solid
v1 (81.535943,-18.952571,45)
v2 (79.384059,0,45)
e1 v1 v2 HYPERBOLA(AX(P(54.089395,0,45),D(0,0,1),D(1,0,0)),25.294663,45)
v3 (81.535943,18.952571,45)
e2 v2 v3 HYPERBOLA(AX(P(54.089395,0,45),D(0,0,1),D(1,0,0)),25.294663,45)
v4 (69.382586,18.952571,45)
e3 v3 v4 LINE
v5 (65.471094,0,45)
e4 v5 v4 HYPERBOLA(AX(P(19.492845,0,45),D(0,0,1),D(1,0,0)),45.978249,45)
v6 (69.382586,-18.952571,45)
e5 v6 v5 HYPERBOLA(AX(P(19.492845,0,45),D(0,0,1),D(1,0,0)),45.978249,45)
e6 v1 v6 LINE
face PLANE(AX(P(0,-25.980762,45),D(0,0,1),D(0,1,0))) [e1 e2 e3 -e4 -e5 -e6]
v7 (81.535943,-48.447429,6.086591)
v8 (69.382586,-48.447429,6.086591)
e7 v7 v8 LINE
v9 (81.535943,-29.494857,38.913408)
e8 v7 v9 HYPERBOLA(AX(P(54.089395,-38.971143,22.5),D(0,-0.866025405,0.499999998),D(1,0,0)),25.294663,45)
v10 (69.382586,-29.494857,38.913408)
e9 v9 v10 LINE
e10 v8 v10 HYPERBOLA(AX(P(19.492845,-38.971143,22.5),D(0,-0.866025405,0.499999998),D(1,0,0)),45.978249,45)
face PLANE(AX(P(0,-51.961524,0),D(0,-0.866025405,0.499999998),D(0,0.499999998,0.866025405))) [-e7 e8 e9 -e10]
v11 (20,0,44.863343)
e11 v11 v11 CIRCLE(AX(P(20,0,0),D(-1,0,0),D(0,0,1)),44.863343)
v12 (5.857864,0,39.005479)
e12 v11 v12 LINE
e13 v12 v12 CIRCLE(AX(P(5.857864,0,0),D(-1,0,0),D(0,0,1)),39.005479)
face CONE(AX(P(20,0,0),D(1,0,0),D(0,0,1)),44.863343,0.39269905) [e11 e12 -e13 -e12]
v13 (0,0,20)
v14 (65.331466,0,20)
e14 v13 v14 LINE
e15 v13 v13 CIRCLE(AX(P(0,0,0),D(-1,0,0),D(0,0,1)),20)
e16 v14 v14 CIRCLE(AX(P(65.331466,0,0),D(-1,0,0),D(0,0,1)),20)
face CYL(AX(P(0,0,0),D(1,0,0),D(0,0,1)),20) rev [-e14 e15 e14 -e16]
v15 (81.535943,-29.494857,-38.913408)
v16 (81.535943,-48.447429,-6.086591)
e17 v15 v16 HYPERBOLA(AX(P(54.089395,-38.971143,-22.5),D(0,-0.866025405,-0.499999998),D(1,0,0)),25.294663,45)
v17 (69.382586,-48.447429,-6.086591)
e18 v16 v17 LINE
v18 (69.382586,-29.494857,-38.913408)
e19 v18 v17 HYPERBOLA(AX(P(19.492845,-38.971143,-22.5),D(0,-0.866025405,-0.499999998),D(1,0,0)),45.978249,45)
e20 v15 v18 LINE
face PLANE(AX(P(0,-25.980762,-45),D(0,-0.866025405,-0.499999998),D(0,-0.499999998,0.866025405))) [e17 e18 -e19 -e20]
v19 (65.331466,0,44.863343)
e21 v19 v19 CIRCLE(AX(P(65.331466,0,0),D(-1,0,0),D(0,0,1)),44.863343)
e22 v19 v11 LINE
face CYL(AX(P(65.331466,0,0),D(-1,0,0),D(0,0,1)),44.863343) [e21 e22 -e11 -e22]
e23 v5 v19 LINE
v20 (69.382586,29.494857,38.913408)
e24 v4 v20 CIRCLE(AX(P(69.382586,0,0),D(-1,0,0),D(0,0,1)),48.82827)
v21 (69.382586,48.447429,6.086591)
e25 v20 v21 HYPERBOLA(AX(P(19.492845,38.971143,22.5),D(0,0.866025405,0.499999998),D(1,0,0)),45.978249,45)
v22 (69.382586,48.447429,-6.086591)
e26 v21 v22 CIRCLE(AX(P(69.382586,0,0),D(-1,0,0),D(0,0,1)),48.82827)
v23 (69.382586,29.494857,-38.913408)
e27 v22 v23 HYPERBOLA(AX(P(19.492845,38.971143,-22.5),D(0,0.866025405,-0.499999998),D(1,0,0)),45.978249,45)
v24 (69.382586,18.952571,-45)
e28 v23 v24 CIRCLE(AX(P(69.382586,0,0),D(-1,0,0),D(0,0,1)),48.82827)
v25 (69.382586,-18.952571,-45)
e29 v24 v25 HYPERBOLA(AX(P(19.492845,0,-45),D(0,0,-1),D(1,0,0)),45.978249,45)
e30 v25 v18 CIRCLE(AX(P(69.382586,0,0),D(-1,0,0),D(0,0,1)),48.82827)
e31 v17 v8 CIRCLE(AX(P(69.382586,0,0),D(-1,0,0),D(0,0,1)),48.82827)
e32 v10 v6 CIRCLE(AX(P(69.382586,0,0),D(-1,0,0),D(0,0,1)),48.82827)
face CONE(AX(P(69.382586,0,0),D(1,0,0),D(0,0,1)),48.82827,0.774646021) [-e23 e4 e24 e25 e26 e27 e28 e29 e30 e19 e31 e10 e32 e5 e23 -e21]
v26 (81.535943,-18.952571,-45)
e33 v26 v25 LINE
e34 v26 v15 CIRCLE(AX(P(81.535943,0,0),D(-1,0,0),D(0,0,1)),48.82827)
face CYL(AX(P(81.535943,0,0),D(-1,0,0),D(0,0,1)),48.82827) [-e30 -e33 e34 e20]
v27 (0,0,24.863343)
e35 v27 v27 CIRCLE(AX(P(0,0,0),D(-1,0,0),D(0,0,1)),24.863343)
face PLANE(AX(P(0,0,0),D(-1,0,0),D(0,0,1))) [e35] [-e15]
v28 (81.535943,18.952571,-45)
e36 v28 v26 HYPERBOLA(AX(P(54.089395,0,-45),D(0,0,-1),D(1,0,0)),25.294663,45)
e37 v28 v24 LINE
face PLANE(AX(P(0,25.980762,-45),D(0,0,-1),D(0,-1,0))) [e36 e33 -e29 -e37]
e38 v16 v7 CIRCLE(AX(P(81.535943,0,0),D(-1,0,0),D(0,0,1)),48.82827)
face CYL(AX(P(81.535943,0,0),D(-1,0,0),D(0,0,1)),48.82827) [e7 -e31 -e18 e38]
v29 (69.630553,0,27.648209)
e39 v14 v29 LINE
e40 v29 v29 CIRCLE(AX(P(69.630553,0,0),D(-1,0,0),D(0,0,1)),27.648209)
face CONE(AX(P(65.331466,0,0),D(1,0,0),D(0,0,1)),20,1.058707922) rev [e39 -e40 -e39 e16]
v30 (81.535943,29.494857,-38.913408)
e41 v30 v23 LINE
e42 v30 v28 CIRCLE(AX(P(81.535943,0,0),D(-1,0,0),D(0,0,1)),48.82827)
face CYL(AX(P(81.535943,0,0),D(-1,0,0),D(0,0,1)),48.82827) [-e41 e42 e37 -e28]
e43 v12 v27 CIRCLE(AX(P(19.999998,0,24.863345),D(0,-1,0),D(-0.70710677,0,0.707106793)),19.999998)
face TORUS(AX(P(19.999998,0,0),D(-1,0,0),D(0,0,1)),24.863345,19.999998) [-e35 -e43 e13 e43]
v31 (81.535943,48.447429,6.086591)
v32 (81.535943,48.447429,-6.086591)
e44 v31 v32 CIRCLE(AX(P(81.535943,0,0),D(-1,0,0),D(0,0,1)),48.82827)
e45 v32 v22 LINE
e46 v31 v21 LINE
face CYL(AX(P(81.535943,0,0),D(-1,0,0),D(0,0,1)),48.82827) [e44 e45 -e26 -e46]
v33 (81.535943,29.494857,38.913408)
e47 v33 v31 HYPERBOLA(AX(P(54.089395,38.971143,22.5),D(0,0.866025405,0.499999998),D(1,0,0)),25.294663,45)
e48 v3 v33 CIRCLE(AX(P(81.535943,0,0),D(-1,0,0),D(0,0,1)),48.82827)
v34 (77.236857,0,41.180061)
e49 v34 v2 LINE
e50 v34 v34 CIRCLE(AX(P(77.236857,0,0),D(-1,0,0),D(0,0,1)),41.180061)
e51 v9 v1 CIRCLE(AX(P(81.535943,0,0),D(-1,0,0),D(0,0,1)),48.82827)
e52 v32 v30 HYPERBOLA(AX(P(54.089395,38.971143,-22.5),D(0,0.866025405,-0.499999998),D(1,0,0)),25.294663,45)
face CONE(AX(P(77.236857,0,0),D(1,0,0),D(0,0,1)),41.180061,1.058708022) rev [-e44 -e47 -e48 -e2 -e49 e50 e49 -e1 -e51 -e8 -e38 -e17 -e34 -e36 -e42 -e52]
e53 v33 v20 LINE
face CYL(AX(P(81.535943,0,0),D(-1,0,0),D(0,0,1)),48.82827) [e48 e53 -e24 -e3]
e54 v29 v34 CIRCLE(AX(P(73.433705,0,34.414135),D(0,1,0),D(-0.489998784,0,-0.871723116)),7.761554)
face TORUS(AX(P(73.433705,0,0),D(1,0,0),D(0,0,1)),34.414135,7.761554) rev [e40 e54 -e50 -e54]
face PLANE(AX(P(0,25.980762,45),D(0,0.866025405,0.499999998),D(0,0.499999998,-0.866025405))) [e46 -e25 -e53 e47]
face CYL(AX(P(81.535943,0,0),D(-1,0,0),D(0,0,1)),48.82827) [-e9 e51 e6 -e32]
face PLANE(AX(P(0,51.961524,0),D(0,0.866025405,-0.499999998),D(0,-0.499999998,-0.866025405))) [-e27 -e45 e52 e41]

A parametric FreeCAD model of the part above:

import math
import FreeCAD as App
import Part
import Sketcher

V = App.Vector
Q = App.Units.Quantity

doc = App.newDocument("Part")
body = doc.addObject("PartDesign::Body", "Body")

sketch1 = body.newObject("Sketcher::SketchObject", "Sketch")
sketch1.AttachmentSupport = (doc.getObject("XZ_Plane"), [""])
sketch1.MapMode = "FlatFace"
sketch1.addGeometry(Part.LineSegment(V(0, 20, 0), V(65.3, 20, 0)), False)
sketch1.addGeometry(Part.LineSegment(V(65.3, 20, 0), V(69.6, 27.6, 0)), False)
sketch1.addGeometry(Part.ArcOfCircle(Part.Circle(V(73.4, 34.4, 0), V(0, 0, 1), 7.8), math.radians(61), math.radians(241)), False)
sketch1.addGeometry(Part.LineSegment(V(77.2, 41.2, 0), V(81.5, 48.8, 0)), False)
sketch1.addGeometry(Part.LineSegment(V(81.5, 48.8, 0), V(69.4, 48.8, 0)), False)
sketch1.addGeometry(Part.LineSegment(V(69.4, 48.8, 0), V(65.3, 44.9, 0)), False)
sketch1.addGeometry(Part.LineSegment(V(65.3, 44.9, 0), V(20, 44.9, 0)), False)
sketch1.addGeometry(Part.LineSegment(V(20, 44.9, 0), V(5.9, 39, 0)), False)
sketch1.addGeometry(Part.ArcOfCircle(Part.Circle(V(20, 24.9, 0), V(0, 0, 1), 20), math.radians(135), math.radians(180)), False)
sketch1.addGeometry(Part.LineSegment(V(0, 24.9, 0), V(0, 20, 0)), False)
sketch1.addConstraint(Sketcher.Constraint("Coincident", 0, 2, 1, 1))
sketch1.addConstraint(Sketcher.Constraint("Coincident", 1, 2, 2, 2))
sketch1.addConstraint(Sketcher.Constraint("Coincident", 2, 1, 3, 1))
sketch1.addConstraint(Sketcher.Constraint("Coincident", 3, 2, 4, 1))
sketch1.addConstraint(Sketcher.Constraint("Coincident", 4, 2, 5, 1))
sketch1.addConstraint(Sketcher.Constraint("Coincident", 5, 2, 6, 1))
sketch1.addConstraint(Sketcher.Constraint("Coincident", 6, 2, 7, 1))
sketch1.addConstraint(Sketcher.Constraint("Coincident", 7, 2, 8, 1))
sketch1.addConstraint(Sketcher.Constraint("Tangent", 8, 2, 9, 1))
sketch1.addConstraint(Sketcher.Constraint("Coincident", 9, 2, 0, 1))
sketch1.addConstraint(Sketcher.Constraint("Horizontal", 0))
sketch1.addConstraint(Sketcher.Constraint("Horizontal", 4))
sketch1.addConstraint(Sketcher.Constraint("Horizontal", 6))
sketch1.addConstraint(Sketcher.Constraint("Vertical", 9))
sketch1.addConstraint(Sketcher.Constraint("PointOnObject", 8, 2, -2))
sketch1.addConstraint(Sketcher.Constraint("Parallel", 1, 3))
sketch1.addConstraint(Sketcher.Constraint("Vertical", 0, 2, 5, 2))
sketch1.addConstraint(Sketcher.Constraint("Equal", 1, 3))
sketch1.addConstraint(Sketcher.Constraint("DistanceY", -1, 1, 0, 2, Q("20 mm")))
sketch1.addConstraint(Sketcher.Constraint("DistanceX", -1, 1, 6, 2, Q("20 mm")))
sketch1.addConstraint(Sketcher.Constraint("Angle", 7, Q("-157.500002 deg")))
sketch1.addConstraint(Sketcher.Constraint("DistanceY", 8, 3, 6, 2, Q("19.999998 mm")))
sketch1.addConstraint(Sketcher.Constraint("Radius", 2, Q("7.761554 mm")))
sketch1.addConstraint(Sketcher.Constraint("Radius", 8, Q("19.999998 mm")))
sketch1.addConstraint(Sketcher.Constraint("Distance", 5, Q("5.668529 mm")))
sketch1.addConstraint(Sketcher.Constraint("DistanceX", 0, 1, 0, 2, Q("65.331466 mm")))
sketch1.addConstraint(Sketcher.Constraint("DistanceX", 4, 2, 4, 1, Q("12.153357 mm")))
sketch1.addConstraint(Sketcher.Constraint("DistanceY", 9, 2, 9, 1, Q("4.863343 mm")))
sketch1.addConstraint(Sketcher.Constraint("DistanceY", -1, 1, 1, 2, Q("27.648209 mm")))
sketch1.addConstraint(Sketcher.Constraint("DistanceY", -1, 1, 2, 1, Q("41.180061 mm")))
sketch1.addConstraint(Sketcher.Constraint("DistanceY", 8, 3, 2, 3, Q("9.55079 mm")))
revolution = body.newObject("PartDesign::Revolution", "Revolution")
revolution.Profile = sketch1
revolution.ReferenceAxis = (sketch1, ["H_Axis"])
revolution.Angle = 360

sketch2 = body.newObject("Sketcher::SketchObject", "Sketch001")
sketch2.AttachmentSupport = (doc.getObject("YZ_Plane"), [""])
sketch2.MapMode = "FlatFace"
sketch2.addGeometry(Part.Circle(V(0, 0, 0), V(0, 0, 1), 117), False)
sketch2.addGeometry(Part.LineSegment(V(-26, -45, 0), V(-52, 0, 0)), False)
sketch2.addGeometry(Part.LineSegment(V(-52, 0, 0), V(-26, 45, 0)), False)
sketch2.addGeometry(Part.LineSegment(V(-26, 45, 0), V(26, 45, 0)), False)
sketch2.addGeometry(Part.LineSegment(V(26, 45, 0), V(52, 0, 0)), False)
sketch2.addGeometry(Part.LineSegment(V(52, 0, 0), V(26, -45, 0)), False)
sketch2.addGeometry(Part.LineSegment(V(26, -45, 0), V(-26, -45, 0)), False)
sketch2.addConstraint(Sketcher.Constraint("Coincident", 1, 2, 2, 1))
sketch2.addConstraint(Sketcher.Constraint("Coincident", 2, 2, 3, 1))
sketch2.addConstraint(Sketcher.Constraint("Coincident", 3, 2, 4, 1))
sketch2.addConstraint(Sketcher.Constraint("Coincident", 4, 2, 5, 1))
sketch2.addConstraint(Sketcher.Constraint("Coincident", 5, 2, 6, 1))
sketch2.addConstraint(Sketcher.Constraint("Coincident", 6, 2, 1, 1))
sketch2.addConstraint(Sketcher.Constraint("Horizontal", 3))
sketch2.addConstraint(Sketcher.Constraint("Horizontal", 6))
sketch2.addConstraint(Sketcher.Constraint("Coincident", 0, 3, -1, 1))
sketch2.addConstraint(Sketcher.Constraint("Symmetric", 1, 2, 4, 2, -1, 1))
sketch2.addConstraint(Sketcher.Constraint("Symmetric", 2, 2, 5, 2, -1, 1))
sketch2.addConstraint(Sketcher.Constraint("PointOnObject", 1, 2, -1))
sketch2.addConstraint(Sketcher.Constraint("Parallel", 1, 4))
sketch2.addConstraint(Sketcher.Constraint("Vertical", 3, 2, 5, 2))
sketch2.addConstraint(Sketcher.Constraint("Angle", 1, Q("120 deg")))
sketch2.addConstraint(Sketcher.Constraint("DistanceY", -1, 1, 2, 2, Q("45 mm")))
sketch2.addConstraint(Sketcher.Constraint("Diameter", 0, Q("234.264636 mm")))
sketch2.addConstraint(Sketcher.Constraint("DistanceX", 3, 1, 3, 2, Q("51.961524 mm")))
pocket1 = body.newObject("PartDesign::Pocket", "Pocket")
pocket1.Profile = sketch2
pocket1.Length = 157.902554
pocket1.Reversed = True

doc.recompute()
